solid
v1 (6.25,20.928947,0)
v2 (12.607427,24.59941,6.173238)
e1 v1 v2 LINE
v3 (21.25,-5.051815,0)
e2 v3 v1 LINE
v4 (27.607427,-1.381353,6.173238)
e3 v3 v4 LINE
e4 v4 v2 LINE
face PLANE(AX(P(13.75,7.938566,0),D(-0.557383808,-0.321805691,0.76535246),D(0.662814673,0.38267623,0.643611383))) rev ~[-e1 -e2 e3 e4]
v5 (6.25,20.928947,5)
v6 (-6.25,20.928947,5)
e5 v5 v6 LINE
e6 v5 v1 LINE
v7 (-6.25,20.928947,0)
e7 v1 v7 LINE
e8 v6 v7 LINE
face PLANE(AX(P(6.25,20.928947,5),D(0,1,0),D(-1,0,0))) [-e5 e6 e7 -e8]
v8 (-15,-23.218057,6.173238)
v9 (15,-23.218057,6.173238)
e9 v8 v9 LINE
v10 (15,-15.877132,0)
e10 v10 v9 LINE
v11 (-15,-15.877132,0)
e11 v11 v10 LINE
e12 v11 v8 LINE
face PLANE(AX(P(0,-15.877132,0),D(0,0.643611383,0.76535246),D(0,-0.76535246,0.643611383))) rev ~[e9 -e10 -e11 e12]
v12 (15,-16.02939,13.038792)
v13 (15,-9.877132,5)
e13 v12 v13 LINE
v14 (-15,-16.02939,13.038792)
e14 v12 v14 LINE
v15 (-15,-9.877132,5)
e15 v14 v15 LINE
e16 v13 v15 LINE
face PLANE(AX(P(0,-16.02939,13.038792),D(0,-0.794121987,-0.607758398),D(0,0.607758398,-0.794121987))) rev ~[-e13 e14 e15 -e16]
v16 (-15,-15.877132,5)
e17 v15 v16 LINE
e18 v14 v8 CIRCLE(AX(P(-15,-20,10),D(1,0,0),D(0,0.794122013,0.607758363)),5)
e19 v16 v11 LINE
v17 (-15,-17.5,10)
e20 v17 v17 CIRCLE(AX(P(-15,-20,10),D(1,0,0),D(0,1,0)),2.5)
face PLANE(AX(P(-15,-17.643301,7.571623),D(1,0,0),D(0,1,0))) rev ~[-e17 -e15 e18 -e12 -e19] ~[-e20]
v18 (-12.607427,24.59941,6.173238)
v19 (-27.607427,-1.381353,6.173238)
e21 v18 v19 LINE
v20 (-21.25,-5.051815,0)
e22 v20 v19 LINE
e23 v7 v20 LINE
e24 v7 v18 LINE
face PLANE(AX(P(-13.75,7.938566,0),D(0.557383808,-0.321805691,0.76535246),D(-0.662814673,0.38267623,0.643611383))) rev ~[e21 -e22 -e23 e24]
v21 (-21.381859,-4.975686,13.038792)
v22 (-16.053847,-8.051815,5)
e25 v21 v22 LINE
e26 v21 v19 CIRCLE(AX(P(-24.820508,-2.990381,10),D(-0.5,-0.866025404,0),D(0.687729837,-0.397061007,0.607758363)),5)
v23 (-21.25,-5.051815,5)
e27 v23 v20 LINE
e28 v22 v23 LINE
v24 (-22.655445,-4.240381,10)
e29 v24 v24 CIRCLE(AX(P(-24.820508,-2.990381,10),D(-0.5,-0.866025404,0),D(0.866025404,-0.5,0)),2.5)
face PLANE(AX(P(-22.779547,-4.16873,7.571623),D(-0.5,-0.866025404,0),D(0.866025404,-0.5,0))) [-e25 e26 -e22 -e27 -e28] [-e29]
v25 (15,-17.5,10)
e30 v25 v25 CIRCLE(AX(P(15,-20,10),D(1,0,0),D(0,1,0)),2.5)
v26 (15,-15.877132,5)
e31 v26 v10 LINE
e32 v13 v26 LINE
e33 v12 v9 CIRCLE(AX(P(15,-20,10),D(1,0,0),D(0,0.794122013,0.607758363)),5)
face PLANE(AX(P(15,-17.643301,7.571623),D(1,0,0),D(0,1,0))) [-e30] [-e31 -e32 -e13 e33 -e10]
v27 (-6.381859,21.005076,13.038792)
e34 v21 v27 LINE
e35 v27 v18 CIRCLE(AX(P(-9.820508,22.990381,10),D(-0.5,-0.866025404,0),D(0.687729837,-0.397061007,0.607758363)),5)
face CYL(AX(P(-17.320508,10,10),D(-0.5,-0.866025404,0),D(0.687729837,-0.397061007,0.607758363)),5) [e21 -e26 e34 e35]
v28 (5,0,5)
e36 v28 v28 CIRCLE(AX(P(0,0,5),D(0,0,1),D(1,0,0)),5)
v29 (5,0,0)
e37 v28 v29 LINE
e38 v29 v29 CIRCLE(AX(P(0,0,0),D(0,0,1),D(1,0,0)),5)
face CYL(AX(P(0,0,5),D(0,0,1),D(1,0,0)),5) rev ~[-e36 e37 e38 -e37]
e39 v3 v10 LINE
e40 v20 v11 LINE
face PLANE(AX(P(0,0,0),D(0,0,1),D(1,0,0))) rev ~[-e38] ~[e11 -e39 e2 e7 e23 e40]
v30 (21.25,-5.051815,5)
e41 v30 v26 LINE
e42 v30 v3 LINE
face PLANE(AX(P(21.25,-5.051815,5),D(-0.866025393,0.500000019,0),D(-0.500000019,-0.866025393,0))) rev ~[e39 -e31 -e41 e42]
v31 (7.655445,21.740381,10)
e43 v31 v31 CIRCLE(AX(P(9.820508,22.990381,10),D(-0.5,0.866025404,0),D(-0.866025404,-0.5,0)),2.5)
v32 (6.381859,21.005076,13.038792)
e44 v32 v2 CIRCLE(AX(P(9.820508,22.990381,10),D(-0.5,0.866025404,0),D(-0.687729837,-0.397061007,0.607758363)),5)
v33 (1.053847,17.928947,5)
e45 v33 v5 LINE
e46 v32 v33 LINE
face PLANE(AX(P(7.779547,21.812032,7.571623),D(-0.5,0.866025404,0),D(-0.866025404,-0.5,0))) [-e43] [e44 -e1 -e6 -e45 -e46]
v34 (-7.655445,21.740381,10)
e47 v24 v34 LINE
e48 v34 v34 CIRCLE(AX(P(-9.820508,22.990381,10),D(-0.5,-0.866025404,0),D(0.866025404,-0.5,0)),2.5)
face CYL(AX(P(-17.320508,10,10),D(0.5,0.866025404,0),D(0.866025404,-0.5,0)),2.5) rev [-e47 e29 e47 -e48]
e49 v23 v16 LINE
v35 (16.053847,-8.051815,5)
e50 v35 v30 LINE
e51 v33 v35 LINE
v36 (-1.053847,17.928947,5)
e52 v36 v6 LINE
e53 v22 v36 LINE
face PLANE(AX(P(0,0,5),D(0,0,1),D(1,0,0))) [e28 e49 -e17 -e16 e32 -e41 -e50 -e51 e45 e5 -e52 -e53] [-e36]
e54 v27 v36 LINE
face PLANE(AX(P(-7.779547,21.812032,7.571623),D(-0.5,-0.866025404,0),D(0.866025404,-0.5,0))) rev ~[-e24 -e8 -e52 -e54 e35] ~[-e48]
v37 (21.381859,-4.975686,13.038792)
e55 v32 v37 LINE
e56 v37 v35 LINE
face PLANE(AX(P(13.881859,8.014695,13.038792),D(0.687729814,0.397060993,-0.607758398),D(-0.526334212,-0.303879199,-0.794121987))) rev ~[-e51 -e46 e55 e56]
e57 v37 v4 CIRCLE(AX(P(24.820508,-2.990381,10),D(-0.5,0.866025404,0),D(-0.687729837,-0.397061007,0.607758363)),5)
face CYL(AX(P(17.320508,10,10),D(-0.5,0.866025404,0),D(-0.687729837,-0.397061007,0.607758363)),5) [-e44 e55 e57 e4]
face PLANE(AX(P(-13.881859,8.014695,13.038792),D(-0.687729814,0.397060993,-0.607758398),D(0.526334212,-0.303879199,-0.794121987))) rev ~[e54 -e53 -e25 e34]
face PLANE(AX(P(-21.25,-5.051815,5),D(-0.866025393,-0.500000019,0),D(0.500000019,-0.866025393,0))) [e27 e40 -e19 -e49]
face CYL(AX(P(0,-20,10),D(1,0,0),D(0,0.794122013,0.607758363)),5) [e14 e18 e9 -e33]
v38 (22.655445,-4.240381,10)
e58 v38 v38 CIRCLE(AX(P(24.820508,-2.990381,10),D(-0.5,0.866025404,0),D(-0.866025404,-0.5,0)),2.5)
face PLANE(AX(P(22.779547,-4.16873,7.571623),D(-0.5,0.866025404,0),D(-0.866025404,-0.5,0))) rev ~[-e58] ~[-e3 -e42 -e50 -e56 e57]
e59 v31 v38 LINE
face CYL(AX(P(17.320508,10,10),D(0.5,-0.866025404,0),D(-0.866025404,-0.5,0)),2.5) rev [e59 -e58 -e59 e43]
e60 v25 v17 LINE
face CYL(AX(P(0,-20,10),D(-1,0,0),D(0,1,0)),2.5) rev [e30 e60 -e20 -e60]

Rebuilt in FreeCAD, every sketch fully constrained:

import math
import FreeCAD as App
import Part
import Sketcher
Q = App.Units.Quantity


def add_polygon(sketch, points):
    """Adds a closed chain of lines whose ends are joined by coincident constraints."""
    first, n = sketch.GeometryCount, len(points)
    for a, b in zip(points, points[1:] + points[:1]):
        sketch.addGeometry(Part.LineSegment(App.Vector(*a, 0), App.Vector(*b, 0)), False)
    for i in range(n):
        sketch.addConstraint(Sketcher.Constraint("Coincident", first + i, 2, first + (i + 1) % n, 1))

doc = App.newDocument("Part")
body = doc.addObject("PartDesign::Body", "Body")

sketch1 = doc.addObject("Sketcher::SketchObject", "Sketch")
body.addObject(sketch1)
sketch1.AttachmentSupport = (doc.XY_Plane, [""])
sketch1.MapMode = "FlatFace"
add_polygon(sketch1, [(0, 31.754265), (-27.5, -15.877132), (27.5, -15.877132)])
sketch1.addConstraint([
    Sketcher.Constraint("Horizontal", 1),
    Sketcher.Constraint("PointOnObject", 2, 2, -2),
    Sketcher.Constraint("Equal", 0, 2),
    Sketcher.Constraint("DistanceX", 1, 1, 1, 2, Q("55 mm")),
    Sketcher.Constraint("Angle", 0, Q("-120 deg")),
    Sketcher.Constraint("DistanceY", 0, 2, -1, 1, Q("15.877132 mm")),
])
pad1 = doc.addObject("PartDesign::Pad", "Pad")
body.addObject(pad1)
pad1.Profile = sketch1
pad1.Length = 5

sketch2 = doc.addObject("Sketcher::SketchObject", "Sketch001")
body.addObject(sketch2)
sketch2.AttachmentSupport = (doc.XY_Plane, [""])
sketch2.MapMode = "FlatFace"
sketch2.AttachmentOffset = App.Placement(App.Vector(0, 0, 5), App.Rotation())
add_polygon(sketch2, [(-15, -15.877132), (-21.25, -5.051815), (-27.5, -15.877132)])
add_polygon(sketch2, [(27.5, -15.877132), (21.25, -5.051815), (15, -15.877132)])
add_polygon(sketch2, [(6.25, 20.928947), (0, 31.754265), (-6.25, 20.928947)])
sketch2.addConstraint([
    Sketcher.Constraint("Horizontal", 2),
    Sketcher.Constraint("Horizontal", 5),
    Sketcher.Constraint("Horizontal", 8),
    Sketcher.Constraint("Symmetric", 0, 2, 3, 2, -2),
    Sketcher.Constraint("Symmetric", 2, 2, 4, 2, -2),
    Sketcher.Constraint("PointOnObject", 6, 2, -2),
    Sketcher.Constraint("Parallel", 0, 3),
    Sketcher.Constraint("Parallel", 1, 4),
    Sketcher.Constraint("Parallel", 3, 6),
    Sketcher.Constraint("Parallel", 4, 7),
    Sketcher.Constraint("Equal", 5, 8),
    Sketcher.Constraint("Angle", 0, Q("120.000001 deg")),
    Sketcher.Constraint("DistanceX", 2, 1, 2, 2, Q("12.5 mm")),
    Sketcher.Constraint("DistanceX", 2, 2, -1, 1, Q("15 mm")),
    Sketcher.Constraint("DistanceY", 0, 2, 6, 2, Q("36.80608 mm")),
    Sketcher.Constraint("DistanceY", 0, 2, -1, 1, Q("5.051815 mm")),
])
pocket1 = doc.addObject("PartDesign::Pocket", "Pocket")
body.addObject(pocket1)
pocket1.Profile = sketch2
pocket1.Type = "ThroughAll"

sketch3 = doc.addObject("Sketcher::SketchObject", "Sketch002")
body.addObject(sketch3)
sketch3.AttachmentSupport = (doc.XY_Plane, [""])
sketch3.MapMode = "FlatFace"
sketch3.AttachmentOffset = App.Placement(App.Vector(0, 0, 5), App.Rotation())
sketch3.addGeometry(Part.Circle(App.Vector(0, 0, 0), App.Vector(0, 0, 1), 5), False)
sketch3.addConstraint([
    Sketcher.Constraint("Coincident", 0, 3, -1, 1),
    Sketcher.Constraint("Diameter", 0, Q("10 mm")),
])
pocket2 = doc.addObject("PartDesign::Pocket", "Pocket001")
body.addObject(pocket2)
pocket2.Profile = sketch3
pocket2.Length = 5

sketch4 = doc.addObject("Sketcher::SketchObject", "Sketch003")
body.addObject(sketch4)
sketch4.AttachmentSupport = (doc.YZ_Plane, [""])
sketch4.MapMode = "FlatFace"
sketch4.addGeometry([
    Part.ArcOfCircle(Part.Circle(App.Vector(-20, 10, 0), App.Vector(0, 0, 1), 5), math.radians(37.427594), math.radians(229.938357)),
    Part.LineSegment(App.Vector(-23.218057, 6.173238, 0), App.Vector(-15.877132, 0, 0)),
    Part.LineSegment(App.Vector(-15.877132, 0, 0), App.Vector(-15.877132, 5, 0)),
    Part.LineSegment(App.Vector(-15.877132, 5, 0), App.Vector(-9.877132, 5, 0)),
    Part.LineSegment(App.Vector(-9.877132, 5, 0), App.Vector(-16.02939, 13.038792, 0)),
    Part.Circle(App.Vector(-20, 10, 0), App.Vector(0, 0, 1), 2.5),
], False)
sketch4.addConstraint([
    Sketcher.Constraint("Tangent", 0, 2, 1, 1),
    Sketcher.Constraint("Coincident", 1, 2, 2, 1),
    Sketcher.Constraint("Coincident", 2, 2, 3, 1),
    Sketcher.Constraint("Coincident", 3, 2, 4, 1),
    Sketcher.Constraint("Tangent", 4, 2, 0, 1),
    Sketcher.Constraint("Vertical", 2),
    Sketcher.Constraint("Horizontal", 3),
    Sketcher.Constraint("Coincident", 5, 3, 0, 3),
    Sketcher.Constraint("PointOnObject", 1, 2, -1),
    Sketcher.Constraint("Diameter", 5, Q("5 mm")),
    Sketcher.Constraint("Radius", 0, Q("5 mm")),
    Sketcher.Constraint("DistanceX", 3, 1, 3, 2, Q("6 mm")),
    Sketcher.Constraint("DistanceY", 2, 1, 2, 2, Q("5 mm")),
    Sketcher.Constraint("DistanceX", 0, 3, -1, 1, Q("20 mm")),
    Sketcher.Constraint("DistanceY", -1, 1, 0, 3, Q("10 mm")),
    Sketcher.Constraint("Distance", 1, Q("9.591561 mm")),
])
pad2 = doc.addObject("PartDesign::Pad", "Pad001")
body.addObject(pad2)
pad2.Profile = sketch4
pad2.Length = 30
pad2.Midplane = True
doc.recompute()

polarpattern = doc.addObject("PartDesign::PolarPattern", "PolarPattern")
body.addObject(polarpattern)
polarpattern.Originals = [pad2]
polarpattern.Axis = (doc.Z_Axis, [""])
polarpattern.Angle = 360
polarpattern.Occurrences = 3
body.Tip = polarpattern

doc.recompute()
